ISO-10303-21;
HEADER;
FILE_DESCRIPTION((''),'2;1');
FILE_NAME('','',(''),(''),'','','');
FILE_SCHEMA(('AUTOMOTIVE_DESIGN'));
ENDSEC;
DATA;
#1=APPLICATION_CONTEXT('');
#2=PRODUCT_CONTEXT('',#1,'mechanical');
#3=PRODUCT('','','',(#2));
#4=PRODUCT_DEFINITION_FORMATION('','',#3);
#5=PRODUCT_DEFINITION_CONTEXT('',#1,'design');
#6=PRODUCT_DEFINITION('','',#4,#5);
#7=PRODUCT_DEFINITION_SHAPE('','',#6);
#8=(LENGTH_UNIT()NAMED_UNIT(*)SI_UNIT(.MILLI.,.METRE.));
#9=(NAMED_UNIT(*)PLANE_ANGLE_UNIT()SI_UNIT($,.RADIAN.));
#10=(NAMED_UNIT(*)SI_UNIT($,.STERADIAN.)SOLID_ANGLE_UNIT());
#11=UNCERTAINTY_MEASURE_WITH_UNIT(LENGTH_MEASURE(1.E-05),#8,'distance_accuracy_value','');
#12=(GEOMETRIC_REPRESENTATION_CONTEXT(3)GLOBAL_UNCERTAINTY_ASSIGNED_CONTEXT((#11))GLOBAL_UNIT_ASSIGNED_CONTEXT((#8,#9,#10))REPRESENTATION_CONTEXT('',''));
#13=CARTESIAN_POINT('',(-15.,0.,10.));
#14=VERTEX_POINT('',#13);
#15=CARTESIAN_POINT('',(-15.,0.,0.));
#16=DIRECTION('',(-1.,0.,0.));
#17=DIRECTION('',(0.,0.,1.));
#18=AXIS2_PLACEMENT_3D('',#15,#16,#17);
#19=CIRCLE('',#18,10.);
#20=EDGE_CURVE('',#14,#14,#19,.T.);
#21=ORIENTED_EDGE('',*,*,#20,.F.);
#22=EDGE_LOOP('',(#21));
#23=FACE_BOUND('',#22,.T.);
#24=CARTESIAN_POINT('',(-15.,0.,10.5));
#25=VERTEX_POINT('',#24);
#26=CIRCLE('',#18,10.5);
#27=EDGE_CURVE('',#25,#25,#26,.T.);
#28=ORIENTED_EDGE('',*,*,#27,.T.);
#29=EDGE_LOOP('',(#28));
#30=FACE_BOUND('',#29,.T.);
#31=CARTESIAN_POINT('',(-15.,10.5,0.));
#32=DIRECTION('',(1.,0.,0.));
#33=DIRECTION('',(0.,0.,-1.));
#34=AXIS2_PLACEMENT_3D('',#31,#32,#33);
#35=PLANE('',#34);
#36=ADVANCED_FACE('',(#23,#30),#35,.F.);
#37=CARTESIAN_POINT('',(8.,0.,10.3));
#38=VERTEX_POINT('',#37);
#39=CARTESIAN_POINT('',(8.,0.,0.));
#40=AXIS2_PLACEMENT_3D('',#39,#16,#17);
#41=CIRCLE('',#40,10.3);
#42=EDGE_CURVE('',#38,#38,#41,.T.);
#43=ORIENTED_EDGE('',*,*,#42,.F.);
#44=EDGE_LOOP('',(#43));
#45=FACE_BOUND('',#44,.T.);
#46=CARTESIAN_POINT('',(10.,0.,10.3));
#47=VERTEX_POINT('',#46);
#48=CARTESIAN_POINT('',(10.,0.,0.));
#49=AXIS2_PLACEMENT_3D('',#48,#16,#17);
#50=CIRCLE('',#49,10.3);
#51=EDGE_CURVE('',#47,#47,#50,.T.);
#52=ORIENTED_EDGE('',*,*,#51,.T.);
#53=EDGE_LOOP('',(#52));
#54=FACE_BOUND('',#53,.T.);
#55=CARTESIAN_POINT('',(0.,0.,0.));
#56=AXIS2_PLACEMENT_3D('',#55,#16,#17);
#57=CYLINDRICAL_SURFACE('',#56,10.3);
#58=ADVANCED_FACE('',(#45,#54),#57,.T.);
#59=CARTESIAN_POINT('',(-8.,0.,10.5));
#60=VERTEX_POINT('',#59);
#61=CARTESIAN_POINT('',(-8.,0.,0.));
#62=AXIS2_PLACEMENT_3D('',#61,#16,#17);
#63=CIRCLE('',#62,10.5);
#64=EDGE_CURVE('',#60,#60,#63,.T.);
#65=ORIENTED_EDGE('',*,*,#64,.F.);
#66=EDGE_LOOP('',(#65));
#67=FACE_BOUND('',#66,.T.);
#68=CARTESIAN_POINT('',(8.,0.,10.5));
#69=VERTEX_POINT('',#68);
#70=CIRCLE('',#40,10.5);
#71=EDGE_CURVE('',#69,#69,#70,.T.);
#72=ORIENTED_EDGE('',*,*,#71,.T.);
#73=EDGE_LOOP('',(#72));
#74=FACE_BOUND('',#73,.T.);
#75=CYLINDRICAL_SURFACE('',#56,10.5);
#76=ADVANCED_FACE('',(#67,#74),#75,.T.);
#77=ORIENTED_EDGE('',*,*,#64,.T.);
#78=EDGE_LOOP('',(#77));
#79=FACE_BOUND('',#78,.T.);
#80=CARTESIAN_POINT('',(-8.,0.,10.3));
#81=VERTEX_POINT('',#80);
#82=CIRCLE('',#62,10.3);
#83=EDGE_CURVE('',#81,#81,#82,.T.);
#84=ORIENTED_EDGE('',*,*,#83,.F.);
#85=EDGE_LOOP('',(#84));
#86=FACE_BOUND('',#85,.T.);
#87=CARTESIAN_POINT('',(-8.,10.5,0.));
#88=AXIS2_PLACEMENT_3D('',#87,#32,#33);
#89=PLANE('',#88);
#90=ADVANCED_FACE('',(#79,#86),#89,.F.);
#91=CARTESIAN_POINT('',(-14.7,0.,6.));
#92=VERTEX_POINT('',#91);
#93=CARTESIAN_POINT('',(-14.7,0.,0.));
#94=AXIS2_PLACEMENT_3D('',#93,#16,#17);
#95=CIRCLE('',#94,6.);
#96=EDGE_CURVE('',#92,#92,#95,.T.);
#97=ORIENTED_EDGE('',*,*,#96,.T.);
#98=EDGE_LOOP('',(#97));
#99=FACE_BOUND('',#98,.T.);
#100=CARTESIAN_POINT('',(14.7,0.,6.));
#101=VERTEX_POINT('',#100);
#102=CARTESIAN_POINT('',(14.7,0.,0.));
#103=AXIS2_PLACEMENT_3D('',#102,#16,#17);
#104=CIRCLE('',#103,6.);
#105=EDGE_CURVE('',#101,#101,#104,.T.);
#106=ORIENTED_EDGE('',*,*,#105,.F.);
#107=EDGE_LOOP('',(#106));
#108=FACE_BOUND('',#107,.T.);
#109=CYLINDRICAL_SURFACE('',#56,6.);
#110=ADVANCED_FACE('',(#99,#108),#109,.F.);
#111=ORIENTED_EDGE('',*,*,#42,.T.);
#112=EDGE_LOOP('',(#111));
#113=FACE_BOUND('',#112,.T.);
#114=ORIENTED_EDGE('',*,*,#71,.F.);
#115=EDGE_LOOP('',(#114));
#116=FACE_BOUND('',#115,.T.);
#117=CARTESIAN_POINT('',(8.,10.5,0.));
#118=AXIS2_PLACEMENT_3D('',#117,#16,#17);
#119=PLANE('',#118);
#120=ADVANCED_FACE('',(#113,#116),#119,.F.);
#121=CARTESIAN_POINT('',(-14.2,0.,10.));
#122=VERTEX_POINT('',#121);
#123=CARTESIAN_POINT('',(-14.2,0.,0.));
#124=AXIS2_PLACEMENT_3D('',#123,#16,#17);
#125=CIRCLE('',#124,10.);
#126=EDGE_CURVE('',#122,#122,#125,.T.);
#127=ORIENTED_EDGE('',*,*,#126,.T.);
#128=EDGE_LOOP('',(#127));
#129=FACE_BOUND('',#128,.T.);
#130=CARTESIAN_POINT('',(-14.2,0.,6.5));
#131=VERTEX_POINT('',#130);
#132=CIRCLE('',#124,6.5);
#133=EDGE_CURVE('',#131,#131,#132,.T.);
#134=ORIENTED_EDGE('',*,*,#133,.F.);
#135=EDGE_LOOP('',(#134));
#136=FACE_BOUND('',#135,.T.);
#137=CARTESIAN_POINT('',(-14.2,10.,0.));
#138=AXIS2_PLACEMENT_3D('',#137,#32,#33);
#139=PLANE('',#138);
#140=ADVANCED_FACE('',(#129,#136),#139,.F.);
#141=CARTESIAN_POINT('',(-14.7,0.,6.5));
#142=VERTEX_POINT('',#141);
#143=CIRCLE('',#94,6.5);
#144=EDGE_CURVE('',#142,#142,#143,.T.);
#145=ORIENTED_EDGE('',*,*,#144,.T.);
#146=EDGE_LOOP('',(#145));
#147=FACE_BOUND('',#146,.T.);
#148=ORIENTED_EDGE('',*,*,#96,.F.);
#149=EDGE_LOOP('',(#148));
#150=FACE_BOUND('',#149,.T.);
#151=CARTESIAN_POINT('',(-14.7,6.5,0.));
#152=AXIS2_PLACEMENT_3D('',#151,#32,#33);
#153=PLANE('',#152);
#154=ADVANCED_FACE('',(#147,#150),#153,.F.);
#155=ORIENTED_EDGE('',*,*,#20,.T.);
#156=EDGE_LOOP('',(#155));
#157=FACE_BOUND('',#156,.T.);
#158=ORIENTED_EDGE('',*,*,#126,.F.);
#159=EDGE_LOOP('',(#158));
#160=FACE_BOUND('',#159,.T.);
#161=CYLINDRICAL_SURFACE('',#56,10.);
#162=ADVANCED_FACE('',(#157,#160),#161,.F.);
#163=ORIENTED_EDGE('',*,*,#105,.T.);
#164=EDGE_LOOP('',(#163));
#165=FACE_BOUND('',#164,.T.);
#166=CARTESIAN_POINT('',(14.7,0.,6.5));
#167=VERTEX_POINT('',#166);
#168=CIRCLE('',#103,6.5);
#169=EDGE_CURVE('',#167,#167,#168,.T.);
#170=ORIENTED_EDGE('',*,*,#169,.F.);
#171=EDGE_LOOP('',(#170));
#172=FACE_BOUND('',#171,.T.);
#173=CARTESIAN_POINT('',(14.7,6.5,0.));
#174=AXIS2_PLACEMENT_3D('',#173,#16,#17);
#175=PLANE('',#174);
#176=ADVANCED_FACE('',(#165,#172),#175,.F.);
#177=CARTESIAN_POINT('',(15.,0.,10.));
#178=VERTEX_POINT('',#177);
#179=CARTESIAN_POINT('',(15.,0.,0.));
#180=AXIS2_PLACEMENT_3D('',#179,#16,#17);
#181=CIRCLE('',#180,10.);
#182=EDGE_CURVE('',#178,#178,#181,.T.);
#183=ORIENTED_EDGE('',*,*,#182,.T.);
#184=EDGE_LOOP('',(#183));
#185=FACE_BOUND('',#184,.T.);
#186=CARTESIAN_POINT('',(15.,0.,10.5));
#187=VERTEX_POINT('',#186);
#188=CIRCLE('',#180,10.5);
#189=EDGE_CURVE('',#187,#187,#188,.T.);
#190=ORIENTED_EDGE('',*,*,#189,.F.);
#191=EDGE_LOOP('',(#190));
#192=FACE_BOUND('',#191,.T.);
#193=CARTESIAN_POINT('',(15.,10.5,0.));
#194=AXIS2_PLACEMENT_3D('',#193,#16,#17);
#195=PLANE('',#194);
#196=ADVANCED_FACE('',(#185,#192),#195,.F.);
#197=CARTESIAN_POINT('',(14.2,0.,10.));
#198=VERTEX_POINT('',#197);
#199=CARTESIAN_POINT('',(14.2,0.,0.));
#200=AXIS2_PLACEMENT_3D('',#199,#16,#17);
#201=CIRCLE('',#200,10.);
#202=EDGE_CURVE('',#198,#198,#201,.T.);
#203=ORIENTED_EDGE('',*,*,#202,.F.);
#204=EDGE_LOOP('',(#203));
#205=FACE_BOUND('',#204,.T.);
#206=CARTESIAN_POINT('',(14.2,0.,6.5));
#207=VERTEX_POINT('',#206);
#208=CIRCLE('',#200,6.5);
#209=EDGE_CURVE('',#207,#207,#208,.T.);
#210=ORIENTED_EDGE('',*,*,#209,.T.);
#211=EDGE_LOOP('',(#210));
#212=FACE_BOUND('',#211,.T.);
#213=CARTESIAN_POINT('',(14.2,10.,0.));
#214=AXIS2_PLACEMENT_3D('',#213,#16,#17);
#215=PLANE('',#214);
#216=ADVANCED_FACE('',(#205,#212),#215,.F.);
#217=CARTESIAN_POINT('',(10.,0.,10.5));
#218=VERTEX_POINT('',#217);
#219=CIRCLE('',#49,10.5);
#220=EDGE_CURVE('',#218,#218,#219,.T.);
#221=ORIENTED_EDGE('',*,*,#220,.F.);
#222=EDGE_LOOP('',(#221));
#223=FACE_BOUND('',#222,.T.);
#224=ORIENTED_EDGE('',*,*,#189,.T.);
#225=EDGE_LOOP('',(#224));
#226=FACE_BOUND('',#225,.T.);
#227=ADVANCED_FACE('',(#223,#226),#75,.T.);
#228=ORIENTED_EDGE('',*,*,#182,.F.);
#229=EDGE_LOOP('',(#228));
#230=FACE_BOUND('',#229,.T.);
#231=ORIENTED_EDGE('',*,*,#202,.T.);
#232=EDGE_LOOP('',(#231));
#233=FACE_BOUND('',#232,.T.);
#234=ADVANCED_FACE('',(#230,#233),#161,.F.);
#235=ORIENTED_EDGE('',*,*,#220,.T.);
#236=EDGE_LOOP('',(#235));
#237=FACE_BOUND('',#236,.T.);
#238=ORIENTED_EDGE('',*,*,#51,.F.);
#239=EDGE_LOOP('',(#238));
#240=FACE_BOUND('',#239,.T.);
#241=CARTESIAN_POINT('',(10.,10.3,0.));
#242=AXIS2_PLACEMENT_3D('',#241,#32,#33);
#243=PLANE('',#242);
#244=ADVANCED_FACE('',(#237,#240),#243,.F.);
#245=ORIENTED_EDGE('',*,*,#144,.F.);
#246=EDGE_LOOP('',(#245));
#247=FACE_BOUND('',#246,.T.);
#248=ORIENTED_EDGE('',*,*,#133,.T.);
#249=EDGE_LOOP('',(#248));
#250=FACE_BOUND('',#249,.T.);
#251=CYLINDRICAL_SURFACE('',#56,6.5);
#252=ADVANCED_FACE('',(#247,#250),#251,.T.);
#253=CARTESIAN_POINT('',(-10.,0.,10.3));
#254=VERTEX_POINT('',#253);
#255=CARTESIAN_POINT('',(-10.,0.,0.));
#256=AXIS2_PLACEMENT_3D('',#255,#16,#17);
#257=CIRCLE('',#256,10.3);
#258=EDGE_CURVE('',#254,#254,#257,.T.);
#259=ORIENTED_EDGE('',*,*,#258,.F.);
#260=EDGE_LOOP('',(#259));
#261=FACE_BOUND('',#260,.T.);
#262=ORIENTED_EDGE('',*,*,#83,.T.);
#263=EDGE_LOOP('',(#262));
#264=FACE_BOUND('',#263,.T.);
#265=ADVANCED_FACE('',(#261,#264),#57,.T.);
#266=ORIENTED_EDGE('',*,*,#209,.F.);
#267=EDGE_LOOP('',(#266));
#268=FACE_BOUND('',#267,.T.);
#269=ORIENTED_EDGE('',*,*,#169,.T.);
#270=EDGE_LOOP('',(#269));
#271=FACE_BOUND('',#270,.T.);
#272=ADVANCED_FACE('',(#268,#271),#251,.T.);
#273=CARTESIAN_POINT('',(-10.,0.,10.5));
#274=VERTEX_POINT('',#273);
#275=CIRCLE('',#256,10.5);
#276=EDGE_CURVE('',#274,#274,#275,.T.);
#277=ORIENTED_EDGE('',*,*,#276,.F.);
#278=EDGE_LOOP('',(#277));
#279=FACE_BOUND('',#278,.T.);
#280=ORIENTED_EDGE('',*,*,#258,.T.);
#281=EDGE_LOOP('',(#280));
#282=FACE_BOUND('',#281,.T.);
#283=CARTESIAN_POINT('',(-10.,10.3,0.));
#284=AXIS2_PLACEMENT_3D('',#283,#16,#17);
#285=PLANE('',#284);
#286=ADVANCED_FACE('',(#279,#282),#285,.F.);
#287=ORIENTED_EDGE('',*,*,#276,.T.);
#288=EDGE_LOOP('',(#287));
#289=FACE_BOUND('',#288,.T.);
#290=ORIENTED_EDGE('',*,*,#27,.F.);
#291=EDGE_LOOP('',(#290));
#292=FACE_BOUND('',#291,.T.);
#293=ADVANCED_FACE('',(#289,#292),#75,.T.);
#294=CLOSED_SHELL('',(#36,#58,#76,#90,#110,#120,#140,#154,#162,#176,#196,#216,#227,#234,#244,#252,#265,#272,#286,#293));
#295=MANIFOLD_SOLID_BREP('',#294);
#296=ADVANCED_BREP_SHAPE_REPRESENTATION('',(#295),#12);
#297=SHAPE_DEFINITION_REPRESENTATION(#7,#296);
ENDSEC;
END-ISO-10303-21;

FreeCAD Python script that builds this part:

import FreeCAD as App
import Part
import Sketcher

doc = App.newDocument("Part")
params = doc.addObject("Spreadsheet::Sheet", "Params")
for row, (alias, value) in enumerate([
    ("sketch1_width", "16 mm"),
    ("sketch1_width2", "2 mm"),
    ("sketch1_width3", "5 mm"),
    ("sketch1_width4", "0.8 mm"),
    ("sketch1_width5", "0.5 mm"),
    ("revolution_angle", "360 deg"),
], start=1):
    params.set(f"A{row}", alias)
    params.set(f"B{row}", "=" + value)
    params.setAlias(f"B{row}", alias)

body = doc.addObject("PartDesign::Body", "Body")

# Sketch on XY plane
sketch1 = body.newObject("Sketcher::SketchObject", "Sketch")
sketch1.AttachmentSupport = (doc.getObject("XY_Plane"), [""])
sketch1.MapMode = "FlatFace"
sketch1.addGeometry(Part.LineSegment(App.Vector(8, 10.5, 0), App.Vector(-8, 10.5, 0)), False)
sketch1.addGeometry(Part.LineSegment(App.Vector(-8, 10.5, 0), App.Vector(-8, 10.3, 0)), False)
sketch1.addGeometry(Part.LineSegment(App.Vector(-8, 10.3, 0), App.Vector(-10, 10.3, 0)), False)
sketch1.addGeometry(Part.LineSegment(App.Vector(-10, 10.3, 0), App.Vector(-10, 10.5, 0)), False)
sketch1.addGeometry(Part.LineSegment(App.Vector(-10, 10.5, 0), App.Vector(-15, 10.5, 0)), False)
sketch1.addGeometry(Part.LineSegment(App.Vector(-15, 10.5, 0), App.Vector(-15, 10, 0)), False)
sketch1.addGeometry(Part.LineSegment(App.Vector(-15, 10, 0), App.Vector(-14.2, 10, 0)), False)
sketch1.addGeometry(Part.LineSegment(App.Vector(-14.2, 10, 0), App.Vector(-14.2, 6.5, 0)), False)
sketch1.addGeometry(Part.LineSegment(App.Vector(-14.2, 6.5, 0), App.Vector(-14.7, 6.5, 0)), False)
sketch1.addGeometry(Part.LineSegment(App.Vector(-14.7, 6.5, 0), App.Vector(-14.7, 6, 0)), False)
sketch1.addGeometry(Part.LineSegment(App.Vector(-14.7, 6, 0), App.Vector(14.7, 6, 0)), False)
sketch1.addGeometry(Part.LineSegment(App.Vector(14.7, 6, 0), App.Vector(14.7, 6.5, 0)), False)
sketch1.addGeometry(Part.LineSegment(App.Vector(14.7, 6.5, 0), App.Vector(14.2, 6.5, 0)), False)
sketch1.addGeometry(Part.LineSegment(App.Vector(14.2, 6.5, 0), App.Vector(14.2, 10, 0)), False)
sketch1.addGeometry(Part.LineSegment(App.Vector(14.2, 10, 0), App.Vector(15, 10, 0)), False)
sketch1.addGeometry(Part.LineSegment(App.Vector(15, 10, 0), App.Vector(15, 10.5, 0)), False)
sketch1.addGeometry(Part.LineSegment(App.Vector(15, 10.5, 0), App.Vector(10, 10.5, 0)), False)
sketch1.addGeometry(Part.LineSegment(App.Vector(10, 10.5, 0), App.Vector(10, 10.3, 0)), False)
sketch1.addGeometry(Part.LineSegment(App.Vector(10, 10.3, 0), App.Vector(8, 10.3, 0)), False)
sketch1.addGeometry(Part.LineSegment(App.Vector(8, 10.3, 0), App.Vector(8, 10.5, 0)), False)
sketch1.addConstraint(Sketcher.Constraint("Coincident", 0, 2, 1, 1))
sketch1.addConstraint(Sketcher.Constraint("Coincident", 1, 2, 2, 1))
sketch1.addConstraint(Sketcher.Constraint("Coincident", 2, 2, 3, 1))
sketch1.addConstraint(Sketcher.Constraint("Coincident", 3, 2, 4, 1))
sketch1.addConstraint(Sketcher.Constraint("Coincident", 4, 2, 5, 1))
sketch1.addConstraint(Sketcher.Constraint("Coincident", 5, 2, 6, 1))
sketch1.addConstraint(Sketcher.Constraint("Coincident", 6, 2, 7, 1))
sketch1.addConstraint(Sketcher.Constraint("Coincident", 7, 2, 8, 1))
sketch1.addConstraint(Sketcher.Constraint("Coincident", 8, 2, 9, 1))
sketch1.addConstraint(Sketcher.Constraint("Coincident", 9, 2, 10, 1))
sketch1.addConstraint(Sketcher.Constraint("Coincident", 10, 2, 11, 1))
sketch1.addConstraint(Sketcher.Constraint("Coincident", 11, 2, 12, 1))
sketch1.addConstraint(Sketcher.Constraint("Coincident", 12, 2, 13, 1))
sketch1.addConstraint(Sketcher.Constraint("Coincident", 13, 2, 14, 1))
sketch1.addConstraint(Sketcher.Constraint("Coincident", 14, 2, 15, 1))
sketch1.addConstraint(Sketcher.Constraint("Coincident", 15, 2, 16, 1))
sketch1.addConstraint(Sketcher.Constraint("Coincident", 16, 2, 17, 1))
sketch1.addConstraint(Sketcher.Constraint("Coincident", 17, 2, 18, 1))
sketch1.addConstraint(Sketcher.Constraint("Coincident", 18, 2, 19, 1))
sketch1.addConstraint(Sketcher.Constraint("Coincident", 19, 2, 0, 1))
sketch1.addConstraint(Sketcher.Constraint("Horizontal", 0))
sketch1.addConstraint(Sketcher.Constraint("Vertical", 1))
sketch1.addConstraint(Sketcher.Constraint("Horizontal", 2))
sketch1.addConstraint(Sketcher.Constraint("Vertical", 3))
sketch1.addConstraint(Sketcher.Constraint("Horizontal", 4))
sketch1.addConstraint(Sketcher.Constraint("Vertical", 5))
sketch1.addConstraint(Sketcher.Constraint("Horizontal", 6))
sketch1.addConstraint(Sketcher.Constraint("Vertical", 7))
sketch1.addConstraint(Sketcher.Constraint("Horizontal", 8))
sketch1.addConstraint(Sketcher.Constraint("Vertical", 9))
sketch1.addConstraint(Sketcher.Constraint("Horizontal", 10))
sketch1.addConstraint(Sketcher.Constraint("Vertical", 11))
sketch1.addConstraint(Sketcher.Constraint("Horizontal", 12))
sketch1.addConstraint(Sketcher.Constraint("Vertical", 13))
sketch1.addConstraint(Sketcher.Constraint("Horizontal", 14))
sketch1.addConstraint(Sketcher.Constraint("Vertical", 15))
sketch1.addConstraint(Sketcher.Constraint("Horizontal", 16))
sketch1.addConstraint(Sketcher.Constraint("Vertical", 17))
sketch1.addConstraint(Sketcher.Constraint("Horizontal", 18))
sketch1.addConstraint(Sketcher.Constraint("Vertical", 19))
sketch1.addConstraint(Sketcher.Constraint("Symmetric", 8, 2, 11, 2, -2))
sketch1.addConstraint(Sketcher.Constraint("Symmetric", 6, 2, 13, 2, -2))
sketch1.addConstraint(Sketcher.Constraint("Symmetric", 4, 2, 15, 2, -2))
sketch1.addConstraint(Sketcher.Constraint("Symmetric", 2, 2, 17, 2, -2))
sketch1.addConstraint(Sketcher.Constraint("Horizontal", 0, 2, 3, 2))
sketch1.addConstraint(Sketcher.Constraint("Equal", 2, 18))
sketch1.addConstraint(Sketcher.Constraint("Equal", 12, 5))
sketch1.addConstraint(Sketcher.Constraint("Equal", 5, 9))
sketch1.addConstraint(Sketcher.Constraint("DistanceX", 0, 2, 0, 1, 16.0))
sketch1.addConstraint(Sketcher.Constraint("DistanceX", 2, 2, 2, 1, 2.0))
sketch1.addConstraint(Sketcher.Constraint("DistanceX", 4, 2, 4, 1, 5.0))
sketch1.addConstraint(Sketcher.Constraint("DistanceX", 6, 1, 6, 2, 0.8))
sketch1.addConstraint(Sketcher.Constraint("DistanceX", 8, 2, 8, 1, 0.5))
sketch1.addConstraint(Sketcher.Constraint("DistanceY", 1, 2, 1, 1, 0.2))
sketch1.addConstraint(Sketcher.Constraint("DistanceY", 7, 2, 7, 1, 3.5))
sketch1.addConstraint(Sketcher.Constraint("DistanceY", -1, 1, 5, 2, 10.0))
sketch1.setExpression("Constraints[48]", "Params.sketch1_width")
sketch1.setExpression("Constraints[49]", "Params.sketch1_width2")
sketch1.setExpression("Constraints[50]", "Params.sketch1_width3")
sketch1.setExpression("Constraints[51]", "Params.sketch1_width4")
sketch1.setExpression("Constraints[52]", "Params.sketch1_width5")
revolution = body.newObject("PartDesign::Revolution", "Revolution")
revolution.Profile = sketch1
revolution.ReferenceAxis = (sketch1, ["H_Axis"])
revolution.setExpression("Angle", "Params.revolution_angle")

doc.recompute()
